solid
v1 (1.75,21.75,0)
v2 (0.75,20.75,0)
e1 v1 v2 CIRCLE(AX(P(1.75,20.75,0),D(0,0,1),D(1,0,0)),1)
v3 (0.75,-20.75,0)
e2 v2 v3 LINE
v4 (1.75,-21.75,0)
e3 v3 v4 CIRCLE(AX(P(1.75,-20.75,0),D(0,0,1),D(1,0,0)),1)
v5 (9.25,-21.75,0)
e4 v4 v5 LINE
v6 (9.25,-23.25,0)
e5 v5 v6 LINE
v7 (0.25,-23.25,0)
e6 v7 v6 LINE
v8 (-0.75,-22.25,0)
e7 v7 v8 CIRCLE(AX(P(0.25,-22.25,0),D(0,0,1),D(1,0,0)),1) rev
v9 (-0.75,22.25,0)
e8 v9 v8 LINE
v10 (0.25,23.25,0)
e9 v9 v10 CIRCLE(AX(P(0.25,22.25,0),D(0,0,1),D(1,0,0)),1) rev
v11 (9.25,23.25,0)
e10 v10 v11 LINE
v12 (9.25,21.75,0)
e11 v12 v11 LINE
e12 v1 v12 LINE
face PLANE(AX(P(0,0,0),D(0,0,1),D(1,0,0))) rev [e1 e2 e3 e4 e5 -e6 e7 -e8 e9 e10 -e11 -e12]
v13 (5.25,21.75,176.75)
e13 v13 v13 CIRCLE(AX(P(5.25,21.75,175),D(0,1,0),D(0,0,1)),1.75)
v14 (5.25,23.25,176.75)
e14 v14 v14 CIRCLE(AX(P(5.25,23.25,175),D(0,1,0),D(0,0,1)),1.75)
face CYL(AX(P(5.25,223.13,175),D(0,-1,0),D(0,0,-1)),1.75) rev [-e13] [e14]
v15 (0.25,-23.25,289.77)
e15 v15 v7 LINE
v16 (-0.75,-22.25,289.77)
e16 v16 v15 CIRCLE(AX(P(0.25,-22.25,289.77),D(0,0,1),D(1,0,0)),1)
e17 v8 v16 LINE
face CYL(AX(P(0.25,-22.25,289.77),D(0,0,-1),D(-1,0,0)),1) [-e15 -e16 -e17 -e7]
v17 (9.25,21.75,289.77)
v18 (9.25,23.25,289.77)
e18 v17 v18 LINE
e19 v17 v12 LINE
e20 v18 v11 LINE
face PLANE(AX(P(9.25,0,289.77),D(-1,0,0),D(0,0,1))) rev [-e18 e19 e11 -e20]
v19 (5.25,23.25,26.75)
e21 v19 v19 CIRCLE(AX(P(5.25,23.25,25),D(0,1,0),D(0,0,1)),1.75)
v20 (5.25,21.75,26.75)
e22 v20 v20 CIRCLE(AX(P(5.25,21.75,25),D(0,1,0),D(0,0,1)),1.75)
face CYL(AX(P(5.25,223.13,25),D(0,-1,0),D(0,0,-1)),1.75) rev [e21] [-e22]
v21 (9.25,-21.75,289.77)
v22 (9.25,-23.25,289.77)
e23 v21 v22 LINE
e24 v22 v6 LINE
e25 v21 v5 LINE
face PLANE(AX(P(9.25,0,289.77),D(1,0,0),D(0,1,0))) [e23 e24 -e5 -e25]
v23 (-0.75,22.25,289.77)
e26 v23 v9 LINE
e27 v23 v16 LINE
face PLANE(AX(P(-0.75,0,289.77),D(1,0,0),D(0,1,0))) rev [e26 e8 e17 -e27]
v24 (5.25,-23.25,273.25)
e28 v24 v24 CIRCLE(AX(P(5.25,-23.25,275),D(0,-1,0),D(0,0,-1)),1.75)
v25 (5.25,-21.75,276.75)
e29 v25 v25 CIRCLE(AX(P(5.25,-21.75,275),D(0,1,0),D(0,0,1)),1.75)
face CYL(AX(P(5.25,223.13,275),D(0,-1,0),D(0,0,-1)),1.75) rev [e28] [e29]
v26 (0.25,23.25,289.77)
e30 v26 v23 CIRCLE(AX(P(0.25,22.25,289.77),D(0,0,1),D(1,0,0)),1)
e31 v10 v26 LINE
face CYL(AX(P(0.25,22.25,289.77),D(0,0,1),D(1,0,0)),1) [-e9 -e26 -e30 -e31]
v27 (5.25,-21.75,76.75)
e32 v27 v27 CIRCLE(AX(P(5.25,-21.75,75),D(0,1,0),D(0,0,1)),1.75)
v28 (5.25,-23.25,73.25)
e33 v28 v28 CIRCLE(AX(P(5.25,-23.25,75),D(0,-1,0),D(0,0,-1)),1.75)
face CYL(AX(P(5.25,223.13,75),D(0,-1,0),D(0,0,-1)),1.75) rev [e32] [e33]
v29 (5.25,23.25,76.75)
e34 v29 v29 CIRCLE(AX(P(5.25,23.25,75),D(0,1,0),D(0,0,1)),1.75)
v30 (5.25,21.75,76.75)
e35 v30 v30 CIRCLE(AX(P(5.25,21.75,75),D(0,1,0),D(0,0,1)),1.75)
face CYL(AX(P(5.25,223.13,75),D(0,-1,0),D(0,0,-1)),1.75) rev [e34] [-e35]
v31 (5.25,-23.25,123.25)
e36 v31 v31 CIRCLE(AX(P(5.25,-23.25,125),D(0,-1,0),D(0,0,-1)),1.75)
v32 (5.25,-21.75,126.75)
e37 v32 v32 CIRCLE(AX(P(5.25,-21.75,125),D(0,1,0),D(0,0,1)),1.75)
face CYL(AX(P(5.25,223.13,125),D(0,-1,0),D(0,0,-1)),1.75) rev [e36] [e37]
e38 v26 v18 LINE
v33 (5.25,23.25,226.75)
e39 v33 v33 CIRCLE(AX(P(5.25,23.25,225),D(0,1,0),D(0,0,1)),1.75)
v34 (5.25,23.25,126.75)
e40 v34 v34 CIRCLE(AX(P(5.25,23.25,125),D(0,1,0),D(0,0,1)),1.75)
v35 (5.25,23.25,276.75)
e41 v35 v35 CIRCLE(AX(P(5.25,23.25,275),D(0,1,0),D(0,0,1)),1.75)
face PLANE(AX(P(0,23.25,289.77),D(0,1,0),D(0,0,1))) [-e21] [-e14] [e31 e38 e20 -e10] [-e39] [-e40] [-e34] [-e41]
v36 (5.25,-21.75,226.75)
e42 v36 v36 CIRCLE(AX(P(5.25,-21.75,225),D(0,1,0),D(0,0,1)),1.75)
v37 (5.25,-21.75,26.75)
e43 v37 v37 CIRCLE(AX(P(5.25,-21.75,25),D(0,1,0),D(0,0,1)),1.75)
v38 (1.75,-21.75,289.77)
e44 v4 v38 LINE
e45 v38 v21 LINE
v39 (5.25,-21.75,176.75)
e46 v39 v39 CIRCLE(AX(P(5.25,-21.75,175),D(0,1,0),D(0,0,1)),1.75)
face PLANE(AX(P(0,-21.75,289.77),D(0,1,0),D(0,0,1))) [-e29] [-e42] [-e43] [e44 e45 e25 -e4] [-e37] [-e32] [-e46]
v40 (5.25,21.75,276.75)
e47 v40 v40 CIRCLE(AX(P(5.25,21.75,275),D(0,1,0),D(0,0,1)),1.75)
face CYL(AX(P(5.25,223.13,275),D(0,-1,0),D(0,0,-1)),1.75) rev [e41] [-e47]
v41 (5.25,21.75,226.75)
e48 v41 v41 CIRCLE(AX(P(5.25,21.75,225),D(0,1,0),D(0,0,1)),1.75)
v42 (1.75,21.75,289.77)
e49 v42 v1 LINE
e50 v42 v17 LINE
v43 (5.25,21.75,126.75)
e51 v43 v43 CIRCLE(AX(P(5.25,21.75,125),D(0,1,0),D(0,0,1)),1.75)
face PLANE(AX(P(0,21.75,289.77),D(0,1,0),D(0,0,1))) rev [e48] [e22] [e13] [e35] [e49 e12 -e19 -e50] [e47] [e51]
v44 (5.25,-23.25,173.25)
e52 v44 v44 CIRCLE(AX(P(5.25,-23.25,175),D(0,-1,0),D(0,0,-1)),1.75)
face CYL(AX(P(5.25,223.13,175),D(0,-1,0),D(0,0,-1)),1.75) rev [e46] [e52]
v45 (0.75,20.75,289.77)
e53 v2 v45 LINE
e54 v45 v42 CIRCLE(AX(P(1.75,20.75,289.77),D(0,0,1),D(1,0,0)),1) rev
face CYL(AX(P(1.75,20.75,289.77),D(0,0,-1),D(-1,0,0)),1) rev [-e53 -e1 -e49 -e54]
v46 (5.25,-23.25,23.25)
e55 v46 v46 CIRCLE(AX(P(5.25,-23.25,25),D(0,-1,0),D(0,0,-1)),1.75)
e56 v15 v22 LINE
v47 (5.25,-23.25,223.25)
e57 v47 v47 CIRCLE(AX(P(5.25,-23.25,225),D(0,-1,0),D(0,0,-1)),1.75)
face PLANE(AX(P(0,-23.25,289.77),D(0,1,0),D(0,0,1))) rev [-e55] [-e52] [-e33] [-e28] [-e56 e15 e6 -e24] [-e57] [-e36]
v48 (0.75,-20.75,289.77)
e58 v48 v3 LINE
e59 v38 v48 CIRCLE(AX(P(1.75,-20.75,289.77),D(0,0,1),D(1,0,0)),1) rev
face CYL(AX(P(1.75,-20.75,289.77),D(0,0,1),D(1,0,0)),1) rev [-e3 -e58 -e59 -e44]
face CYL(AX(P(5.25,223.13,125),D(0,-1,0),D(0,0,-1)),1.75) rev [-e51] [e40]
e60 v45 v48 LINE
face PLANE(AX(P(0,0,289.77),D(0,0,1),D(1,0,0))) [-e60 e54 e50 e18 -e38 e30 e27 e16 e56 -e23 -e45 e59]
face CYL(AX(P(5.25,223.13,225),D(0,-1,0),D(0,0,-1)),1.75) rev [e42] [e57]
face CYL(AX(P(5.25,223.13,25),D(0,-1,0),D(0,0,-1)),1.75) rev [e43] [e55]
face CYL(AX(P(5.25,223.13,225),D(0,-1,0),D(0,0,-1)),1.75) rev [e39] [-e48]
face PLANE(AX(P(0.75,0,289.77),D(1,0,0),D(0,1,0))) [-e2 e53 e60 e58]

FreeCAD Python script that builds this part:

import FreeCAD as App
import Part
import Sketcher
from FreeCAD import Vector


def edges_at(feature, points):
    """Names of the edges that pass closest to the given points."""
    edges = feature.Shape.Edges
    near = lambda p: min(range(len(edges)), key=lambda i: edges[i].distToShape(Part.Vertex(*p))[0])
    return sorted({f"Edge{near(p) + 1}" for p in points})

doc = App.newDocument("Part")
params = doc.addObject("Spreadsheet::Sheet", "Params")
for row, (alias, value) in enumerate([
    ("sketch1_width", "10 mm"),
    ("sketch1_width2", "8.5 mm"),
    ("sketch1_height", "43.5 mm"),
    ("sketch1_height2", "1.5 mm"),
    ("pad1_length", "289.77 mm"),
    ("fillet_radius", "1 mm"),
    ("sketch2_diameter", "3.5 mm"),
    ("pocket1_length", "246.38 mm"),
], start=1):
    params.set(f"A{row}", alias)
    params.set(f"B{row}", "=" + value)
    params.setAlias(f"B{row}", alias)

body = doc.addObject("PartDesign::Body", "Body")

sketch1 = body.newObject("Sketcher::SketchObject", "Sketch")
sketch1.AttachmentSupport = (doc.getObject("XY_Plane"), [""])
sketch1.MapMode = "FlatFace"
sketch1.addGeometry(Part.LineSegment(Vector(0.8, -21.8, 0), Vector(0.8, 21.8, 0)), False)
sketch1.addGeometry(Part.LineSegment(Vector(0.8, 21.8, 0), Vector(9.2, 21.8, 0)), False)
sketch1.addGeometry(Part.LineSegment(Vector(9.2, 21.8, 0), Vector(9.2, 23.2, 0)), False)
sketch1.addGeometry(Part.LineSegment(Vector(9.2, 23.2, 0), Vector(-0.8, 23.2, 0)), False)
sketch1.addGeometry(Part.LineSegment(Vector(-0.8, 23.2, 0), Vector(-0.8, -23.2, 0)), False)
sketch1.addGeometry(Part.LineSegment(Vector(-0.8, -23.2, 0), Vector(9.2, -23.2, 0)), False)
sketch1.addGeometry(Part.LineSegment(Vector(9.2, -23.2, 0), Vector(9.2, -21.8, 0)), False)
sketch1.addGeometry(Part.LineSegment(Vector(9.2, -21.8, 0), Vector(0.8, -21.8, 0)), False)
sketch1.addConstraint(Sketcher.Constraint("Coincident", 0, 2, 1, 1))
sketch1.addConstraint(Sketcher.Constraint("Coincident", 1, 2, 2, 1))
sketch1.addConstraint(Sketcher.Constraint("Coincident", 2, 2, 3, 1))
sketch1.addConstraint(Sketcher.Constraint("Coincident", 3, 2, 4, 1))
sketch1.addConstraint(Sketcher.Constraint("Coincident", 4, 2, 5, 1))
sketch1.addConstraint(Sketcher.Constraint("Coincident", 5, 2, 6, 1))
sketch1.addConstraint(Sketcher.Constraint("Coincident", 6, 2, 7, 1))
sketch1.addConstraint(Sketcher.Constraint("Coincident", 7, 2, 0, 1))
sketch1.addConstraint(Sketcher.Constraint("Vertical", 0))
sketch1.addConstraint(Sketcher.Constraint("Horizontal", 1))
sketch1.addConstraint(Sketcher.Constraint("Vertical", 2))
sketch1.addConstraint(Sketcher.Constraint("Horizontal", 3))
sketch1.addConstraint(Sketcher.Constraint("Vertical", 4))
sketch1.addConstraint(Sketcher.Constraint("Horizontal", 5))
sketch1.addConstraint(Sketcher.Constraint("Vertical", 6))
sketch1.addConstraint(Sketcher.Constraint("Horizontal", 7))
sketch1.addConstraint(Sketcher.Constraint("Symmetric", 2, 2, 5, 2, -1))
sketch1.addConstraint(Sketcher.Constraint("Equal", 2, 6))
sketch1.addConstraint(Sketcher.Constraint("DistanceX", 3, 2, 3, 1, 10.0))
sketch1.addConstraint(Sketcher.Constraint("DistanceX", 1, 1, 1, 2, 8.5))
sketch1.addConstraint(Sketcher.Constraint("DistanceY", 0, 1, 0, 2, 43.5))
sketch1.addConstraint(Sketcher.Constraint("DistanceY", 2, 1, 2, 2, 1.5))
sketch1.addConstraint(Sketcher.Constraint("DistanceX", -1, 1, 0, 2, 0.75))
sketch1.setExpression("Constraints[18]", "Params.sketch1_width")
sketch1.setExpression("Constraints[19]", "Params.sketch1_width2")
sketch1.setExpression("Constraints[20]", "Params.sketch1_height")
sketch1.setExpression("Constraints[21]", "Params.sketch1_height2")
pad1 = body.newObject("PartDesign::Pad", "Pad")
pad1.Profile = sketch1
pad1.setExpression("Length", "Params.pad1_length")
doc.recompute()

fillet = body.newObject("PartDesign::Fillet", "Fillet")
fillet.Base = (pad1, edges_at(pad1, [
    (0.75, -21.75, 144.885),
    (-0.75, -23.25, 144.885),
    (-0.75, 23.25, 144.885),
    (0.75, 21.75, 144.885),
]))
fillet.setExpression("Radius", "Params.fillet_radius")

sketch2 = body.newObject("Sketcher::SketchObject", "Sketch001")
sketch2.AttachmentSupport = (doc.getObject("XZ_Plane"), [""])
sketch2.MapMode = "FlatFace"
sketch2.AttachmentOffset = App.Placement(Vector(0, 0, 23.25), App.Rotation())
sketch2.addGeometry(Part.Circle(Vector(5.2, 25, 0), Vector(0, 0, 1), 1.8), False)
sketch2.addGeometry(Part.Circle(Vector(5.2, 75, 0), Vector(0, 0, 1), 1.8), False)
sketch2.addGeometry(Part.Circle(Vector(5.2, 125, 0), Vector(0, 0, 1), 1.8), False)
sketch2.addGeometry(Part.Circle(Vector(5.2, 175, 0), Vector(0, 0, 1), 1.8), False)
sketch2.addGeometry(Part.Circle(Vector(5.2, 225, 0), Vector(0, 0, 1), 1.8), False)
sketch2.addGeometry(Part.Circle(Vector(5.2, 275, 0), Vector(0, 0, 1), 1.8), False)
sketch2.addConstraint(Sketcher.Constraint("Equal", 0, 1))
sketch2.addConstraint(Sketcher.Constraint("Equal", 1, 2))
sketch2.addConstraint(Sketcher.Constraint("Equal", 2, 3))
sketch2.addConstraint(Sketcher.Constraint("Equal", 3, 4))
sketch2.addConstraint(Sketcher.Constraint("Equal", 4, 5))
sketch2.addConstraint(Sketcher.Constraint("Vertical", 0, 3, 1, 3))
sketch2.addConstraint(Sketcher.Constraint("Vertical", 1, 3, 2, 3))
sketch2.addConstraint(Sketcher.Constraint("Vertical", 2, 3, 3, 3))
sketch2.addConstraint(Sketcher.Constraint("Vertical", 3, 3, 4, 3))
sketch2.addConstraint(Sketcher.Constraint("Vertical", 4, 3, 5, 3))
sketch2.addConstraint(Sketcher.Constraint("Diameter", 0, 3.5))
sketch2.addConstraint(Sketcher.Constraint("DistanceY", -1, 1, 0, 3, 25.0))
sketch2.addConstraint(Sketcher.Constraint("DistanceY", -1, 1, 1, 3, 75.0))
sketch2.addConstraint(Sketcher.Constraint("DistanceY", -1, 1, 2, 3, 125.0))
sketch2.addConstraint(Sketcher.Constraint("DistanceY", -1, 1, 3, 3, 175.0))
sketch2.addConstraint(Sketcher.Constraint("DistanceY", -1, 1, 4, 3, 225.0))
sketch2.addConstraint(Sketcher.Constraint("DistanceY", -1, 1, 5, 3, 275.0))
sketch2.addConstraint(Sketcher.Constraint("DistanceX", -1, 1, 0, 3, 5.25))
sketch2.setExpression("Constraints[10]", "Params.sketch2_diameter")
pocket1 = body.newObject("PartDesign::Pocket", "Pocket")
pocket1.Profile = sketch2
pocket1.setExpression("Length", "Params.pocket1_length")

doc.recompute()
